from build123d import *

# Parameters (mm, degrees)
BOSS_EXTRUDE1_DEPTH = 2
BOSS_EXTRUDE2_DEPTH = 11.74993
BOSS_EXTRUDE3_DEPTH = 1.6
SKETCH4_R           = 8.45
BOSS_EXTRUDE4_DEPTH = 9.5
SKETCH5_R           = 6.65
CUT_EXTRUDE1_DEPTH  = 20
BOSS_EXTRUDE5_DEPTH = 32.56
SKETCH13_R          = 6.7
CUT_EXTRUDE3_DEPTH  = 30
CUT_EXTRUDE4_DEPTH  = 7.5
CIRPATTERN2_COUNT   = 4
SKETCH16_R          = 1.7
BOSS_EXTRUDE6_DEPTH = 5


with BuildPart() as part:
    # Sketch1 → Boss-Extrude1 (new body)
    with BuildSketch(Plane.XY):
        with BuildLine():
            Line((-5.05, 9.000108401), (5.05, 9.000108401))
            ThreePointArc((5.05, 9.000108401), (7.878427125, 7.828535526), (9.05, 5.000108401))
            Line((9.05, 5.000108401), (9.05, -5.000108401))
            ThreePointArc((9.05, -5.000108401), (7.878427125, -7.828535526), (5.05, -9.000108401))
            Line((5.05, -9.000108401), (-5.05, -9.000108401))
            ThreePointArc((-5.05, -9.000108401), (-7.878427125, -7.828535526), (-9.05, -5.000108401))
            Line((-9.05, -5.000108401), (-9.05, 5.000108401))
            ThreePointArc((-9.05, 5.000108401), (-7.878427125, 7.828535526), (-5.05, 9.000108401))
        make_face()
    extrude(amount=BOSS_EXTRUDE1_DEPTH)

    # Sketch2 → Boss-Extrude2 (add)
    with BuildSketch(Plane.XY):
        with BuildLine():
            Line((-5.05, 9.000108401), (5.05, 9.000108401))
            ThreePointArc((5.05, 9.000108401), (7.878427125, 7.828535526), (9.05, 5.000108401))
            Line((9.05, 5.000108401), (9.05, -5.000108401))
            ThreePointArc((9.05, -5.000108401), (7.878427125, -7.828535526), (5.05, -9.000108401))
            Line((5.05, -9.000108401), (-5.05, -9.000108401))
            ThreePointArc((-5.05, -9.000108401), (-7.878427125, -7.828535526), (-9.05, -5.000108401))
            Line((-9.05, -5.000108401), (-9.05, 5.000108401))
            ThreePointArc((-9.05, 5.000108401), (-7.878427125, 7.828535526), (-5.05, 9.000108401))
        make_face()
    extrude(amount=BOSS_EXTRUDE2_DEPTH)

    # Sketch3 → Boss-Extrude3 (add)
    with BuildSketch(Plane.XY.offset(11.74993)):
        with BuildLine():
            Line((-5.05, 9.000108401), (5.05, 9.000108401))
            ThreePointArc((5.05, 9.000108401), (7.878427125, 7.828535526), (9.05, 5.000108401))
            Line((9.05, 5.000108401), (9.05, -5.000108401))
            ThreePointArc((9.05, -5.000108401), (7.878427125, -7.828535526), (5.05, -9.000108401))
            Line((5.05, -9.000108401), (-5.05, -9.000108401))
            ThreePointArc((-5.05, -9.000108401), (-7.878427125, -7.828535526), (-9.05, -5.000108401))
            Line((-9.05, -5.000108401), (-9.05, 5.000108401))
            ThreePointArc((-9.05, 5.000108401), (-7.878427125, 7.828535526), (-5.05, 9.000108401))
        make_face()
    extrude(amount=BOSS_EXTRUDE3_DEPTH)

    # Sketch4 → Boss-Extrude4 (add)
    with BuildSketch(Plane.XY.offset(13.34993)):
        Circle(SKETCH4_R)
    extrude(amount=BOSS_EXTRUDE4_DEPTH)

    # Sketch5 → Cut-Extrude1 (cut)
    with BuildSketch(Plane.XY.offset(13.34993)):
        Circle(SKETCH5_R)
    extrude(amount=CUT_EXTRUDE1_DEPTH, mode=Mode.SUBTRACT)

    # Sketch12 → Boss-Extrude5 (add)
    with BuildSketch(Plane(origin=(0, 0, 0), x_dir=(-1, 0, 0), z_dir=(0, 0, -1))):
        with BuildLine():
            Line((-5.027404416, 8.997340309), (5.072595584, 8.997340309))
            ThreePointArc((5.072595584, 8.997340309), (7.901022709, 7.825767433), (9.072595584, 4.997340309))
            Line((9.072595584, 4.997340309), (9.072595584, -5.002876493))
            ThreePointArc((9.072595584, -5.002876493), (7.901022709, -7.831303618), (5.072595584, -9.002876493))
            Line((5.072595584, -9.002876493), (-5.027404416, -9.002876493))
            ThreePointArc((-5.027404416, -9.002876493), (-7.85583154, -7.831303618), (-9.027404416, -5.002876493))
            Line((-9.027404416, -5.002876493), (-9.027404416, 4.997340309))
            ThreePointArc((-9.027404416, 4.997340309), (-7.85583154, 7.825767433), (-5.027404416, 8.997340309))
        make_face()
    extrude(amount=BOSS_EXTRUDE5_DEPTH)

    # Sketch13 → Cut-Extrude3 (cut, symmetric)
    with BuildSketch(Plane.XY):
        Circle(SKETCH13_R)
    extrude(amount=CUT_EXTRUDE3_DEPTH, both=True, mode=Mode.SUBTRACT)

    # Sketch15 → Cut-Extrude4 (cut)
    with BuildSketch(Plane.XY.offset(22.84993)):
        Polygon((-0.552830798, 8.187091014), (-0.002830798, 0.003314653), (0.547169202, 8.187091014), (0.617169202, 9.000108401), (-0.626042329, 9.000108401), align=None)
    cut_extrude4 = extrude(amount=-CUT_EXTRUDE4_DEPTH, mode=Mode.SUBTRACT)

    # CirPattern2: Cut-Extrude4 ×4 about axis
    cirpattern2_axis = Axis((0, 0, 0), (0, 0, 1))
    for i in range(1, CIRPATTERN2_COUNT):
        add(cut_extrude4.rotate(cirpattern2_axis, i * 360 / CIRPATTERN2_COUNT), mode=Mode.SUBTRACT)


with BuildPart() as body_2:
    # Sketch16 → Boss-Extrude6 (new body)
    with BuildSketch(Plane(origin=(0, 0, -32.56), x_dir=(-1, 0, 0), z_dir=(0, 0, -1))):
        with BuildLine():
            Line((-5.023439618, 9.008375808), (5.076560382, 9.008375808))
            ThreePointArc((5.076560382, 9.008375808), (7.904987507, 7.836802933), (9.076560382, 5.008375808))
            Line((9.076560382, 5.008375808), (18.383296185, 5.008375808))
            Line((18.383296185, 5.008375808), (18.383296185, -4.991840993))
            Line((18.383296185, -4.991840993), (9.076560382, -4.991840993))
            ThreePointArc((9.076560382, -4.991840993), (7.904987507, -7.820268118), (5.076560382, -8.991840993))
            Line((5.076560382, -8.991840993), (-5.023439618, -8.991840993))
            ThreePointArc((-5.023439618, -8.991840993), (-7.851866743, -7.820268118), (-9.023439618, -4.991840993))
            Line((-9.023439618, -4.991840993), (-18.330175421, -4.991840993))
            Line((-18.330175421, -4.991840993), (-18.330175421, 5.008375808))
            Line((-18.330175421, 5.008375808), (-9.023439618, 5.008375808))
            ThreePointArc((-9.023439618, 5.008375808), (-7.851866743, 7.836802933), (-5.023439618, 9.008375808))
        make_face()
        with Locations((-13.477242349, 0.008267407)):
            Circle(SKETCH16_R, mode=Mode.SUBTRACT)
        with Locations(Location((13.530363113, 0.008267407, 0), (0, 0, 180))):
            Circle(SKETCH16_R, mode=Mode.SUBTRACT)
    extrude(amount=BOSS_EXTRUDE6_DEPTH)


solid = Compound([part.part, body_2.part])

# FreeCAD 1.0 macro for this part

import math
import FreeCAD as App
import Part
import Sketcher

V = App.Vector
Q = App.Units.Quantity

doc = App.newDocument("Part")
body = doc.addObject("PartDesign::Body", "Body")

# Sketch on XY plane
sketch1 = body.newObject("Sketcher::SketchObject", "Sketch")
sketch1.AttachmentSupport = (doc.getObject("XY_Plane"), [""])
sketch1.MapMode = "FlatFace"
sketch1.addGeometry([
    Part.LineSegment(V(5, 9, 0), V(-5, 9, 0)),  # 0
    Part.ArcOfCircle(Part.Circle(V(-5.1, 5, 0), V(0, 0, 1), 4), math.radians(90), math.radians(180)),  # 1
    Part.LineSegment(V(-9.1, 5, 0), V(-9.1, -5, 0)),  # 2
    Part.ArcOfCircle(Part.Circle(V(-5.1, -5, 0), V(0, 0, 1), 4), math.radians(180), math.radians(270)),  # 3
    Part.LineSegment(V(-5, -9, 0), V(5, -9, 0)),  # 4
    Part.ArcOfCircle(Part.Circle(V(5.1, -5, 0), V(0, 0, 1), 4), math.radians(-90), math.radians(0)),  # 5
    Part.LineSegment(V(9.1, -5, 0), V(9.1, 5, 0)),  # 6
    Part.ArcOfCircle(Part.Circle(V(5.1, 5, 0), V(0, 0, 1), 4), math.radians(0), math.radians(90)),  # 7
], False)
sketch1.addConstraint([
    Sketcher.Constraint("Tangent", 0, 2, 1, 1),
    Sketcher.Constraint("Tangent", 1, 2, 2, 1),
    Sketcher.Constraint("Tangent", 2, 2, 3, 1),
    Sketcher.Constraint("Tangent", 3, 2, 4, 1),
    Sketcher.Constraint("Tangent", 4, 2, 5, 1),
    Sketcher.Constraint("Tangent", 5, 2, 6, 1),
    Sketcher.Constraint("Tangent", 6, 2, 7, 1),
    Sketcher.Constraint("Tangent", 7, 2, 0, 1),
    Sketcher.Constraint("Horizontal", 0),
    Sketcher.Constraint("Vertical", 2),
    Sketcher.Constraint("Horizontal", 4),
    Sketcher.Constraint("Vertical", 6),
    Sketcher.Constraint("Equal", 1, 3),
    Sketcher.Constraint("Equal", 3, 5),
    Sketcher.Constraint("Equal", 5, 7),
    Sketcher.Constraint("Symmetric", 1, 3, 5, 3, -1, 1),
    Sketcher.Constraint("Radius", 1, Q("4 mm")),
    Sketcher.Constraint("DistanceX", 0, 2, 0, 1, Q("10.1 mm")),
    Sketcher.Constraint("DistanceY", 2, 2, 2, 1, Q("10.000217 mm")),
])
pad1 = body.newObject("PartDesign::Pad", "Pad")
pad1.Profile = sketch1
pad1.Length = 2

# Sketch on XY plane
sketch2 = body.newObject("Sketcher::SketchObject", "Sketch001")
sketch2.AttachmentSupport = (doc.getObject("XY_Plane"), [""])
sketch2.MapMode = "FlatFace"
sketch2.addGeometry([
    Part.LineSegment(V(5, 9, 0), V(-5, 9, 0)),  # 0
    Part.ArcOfCircle(Part.Circle(V(-5.1, 5, 0), V(0, 0, 1), 4), math.radians(90), math.radians(180)),  # 1
    Part.LineSegment(V(-9.1, 5, 0), V(-9.1, -5, 0)),  # 2
    Part.ArcOfCircle(Part.Circle(V(-5.1, -5, 0), V(0, 0, 1), 4), math.radians(180), math.radians(270)),  # 3
    Part.LineSegment(V(-5, -9, 0), V(5, -9, 0)),  # 4
    Part.ArcOfCircle(Part.Circle(V(5.1, -5, 0), V(0, 0, 1), 4), math.radians(-90), math.radians(0)),  # 5
    Part.LineSegment(V(9.1, -5, 0), V(9.1, 5, 0)),  # 6
    Part.ArcOfCircle(Part.Circle(V(5.1, 5, 0), V(0, 0, 1), 4), math.radians(0), math.radians(90)),  # 7
], False)
sketch2.addConstraint([
    Sketcher.Constraint("Tangent", 0, 2, 1, 1),
    Sketcher.Constraint("Tangent", 1, 2, 2, 1),
    Sketcher.Constraint("Tangent", 2, 2, 3, 1),
    Sketcher.Constraint("Tangent", 3, 2, 4, 1),
    Sketcher.Constraint("Tangent", 4, 2, 5, 1),
    Sketcher.Constraint("Tangent", 5, 2, 6, 1),
    Sketcher.Constraint("Tangent", 6, 2, 7, 1),
    Sketcher.Constraint("Tangent", 7, 2, 0, 1),
    Sketcher.Constraint("Horizontal", 0),
    Sketcher.Constraint("Vertical", 2),
    Sketcher.Constraint("Horizontal", 4),
    Sketcher.Constraint("Vertical", 6),
    Sketcher.Constraint("Equal", 1, 3),
    Sketcher.Constraint("Equal", 3, 5),
    Sketcher.Constraint("Equal", 5, 7),
    Sketcher.Constraint("Symmetric", 1, 3, 5, 3, -1, 1),
    Sketcher.Constraint("Radius", 1, Q("4 mm")),
    Sketcher.Constraint("DistanceX", 0, 2, 0, 1, Q("10.1 mm")),
    Sketcher.Constraint("DistanceY", 2, 2, 2, 1, Q("10.000217 mm")),
])
pad2 = body.newObject("PartDesign::Pad", "Pad001")
pad2.Profile = sketch2
pad2.Length = 11.74993

# Sketch on XY plane
sketch3 = body.newObject("Sketcher::SketchObject", "Sketch002")
sketch3.AttachmentSupport = (doc.getObject("XY_Plane"), [""])
sketch3.MapMode = "FlatFace"
sketch3.AttachmentOffset = App.Placement(V(0, 0, 11.74993), App.Rotation())
sketch3.addGeometry([
    Part.LineSegment(V(5, 9, 0), V(-5, 9, 0)),  # 0
    Part.ArcOfCircle(Part.Circle(V(-5.1, 5, 0), V(0, 0, 1), 4), math.radians(90), math.radians(180)),  # 1
    Part.LineSegment(V(-9.1, 5, 0), V(-9.1, -5, 0)),  # 2
    Part.ArcOfCircle(Part.Circle(V(-5.1, -5, 0), V(0, 0, 1), 4), math.radians(180), math.radians(270)),  # 3
    Part.LineSegment(V(-5, -9, 0), V(5, -9, 0)),  # 4
    Part.ArcOfCircle(Part.Circle(V(5.1, -5, 0), V(0, 0, 1), 4), math.radians(-90), math.radians(0)),  # 5
    Part.LineSegment(V(9.1, -5, 0), V(9.1, 5, 0)),  # 6
    Part.ArcOfCircle(Part.Circle(V(5.1, 5, 0), V(0, 0, 1), 4), math.radians(0), math.radians(90)),  # 7
], False)
sketch3.addConstraint([
    Sketcher.Constraint("Tangent", 0, 2, 1, 1),
    Sketcher.Constraint("Tangent", 1, 2, 2, 1),
    Sketcher.Constraint("Tangent", 2, 2, 3, 1),
    Sketcher.Constraint("Tangent", 3, 2, 4, 1),
    Sketcher.Constraint("Tangent", 4, 2, 5, 1),
    Sketcher.Constraint("Tangent", 5, 2, 6, 1),
    Sketcher.Constraint("Tangent", 6, 2, 7, 1),
    Sketcher.Constraint("Tangent", 7, 2, 0, 1),
    Sketcher.Constraint("Horizontal", 0),
    Sketcher.Constraint("Vertical", 2),
    Sketcher.Constraint("Horizontal", 4),
    Sketcher.Constraint("Vertical", 6),
    Sketcher.Constraint("Equal", 1, 3),
    Sketcher.Constraint("Equal", 3, 5),
    Sketcher.Constraint("Equal", 5, 7),
    Sketcher.Constraint("Symmetric", 1, 3, 5, 3, -1, 1),
    Sketcher.Constraint("Radius", 1, Q("4 mm")),
    Sketcher.Constraint("DistanceX", 0, 2, 0, 1, Q("10.1 mm")),
    Sketcher.Constraint("DistanceY", 2, 2, 2, 1, Q("10.000217 mm")),
])
pad3 = body.newObject("PartDesign::Pad", "Pad002")
pad3.Profile = sketch3
pad3.Length = 1.6

# Sketch on XY plane
sketch4 = body.newObject("Sketcher::SketchObject", "Sketch003")
sketch4.AttachmentSupport = (doc.getObject("XY_Plane"), [""])
sketch4.MapMode = "FlatFace"
sketch4.AttachmentOffset = App.Placement(V(0, 0, 13.34993), App.Rotation())
sketch4.addGeometry(Part.Circle(V(0, 0, 0), V(0, 0, 1), 8), False)
sketch4.addConstraint([
    Sketcher.Constraint("Coincident", 0, 3, -1, 1),
    Sketcher.Constraint("Diameter", 0, Q("16.9 mm")),
])
pad4 = body.newObject("PartDesign::Pad", "Pad003")
pad4.Profile = sketch4
pad4.Length = 9.5

# Sketch on XY plane
sketch5 = body.newObject("Sketcher::SketchObject", "Sketch004")
sketch5.AttachmentSupport = (doc.getObject("XY_Plane"), [""])
sketch5.MapMode = "FlatFace"
sketch5.AttachmentOffset = App.Placement(V(0, 0, 13.34993), App.Rotation())
sketch5.addGeometry(Part.Circle(V(0, 0, 0), V(0, 0, 1), 7), False)
sketch5.addConstraint([
    Sketcher.Constraint("Coincident", 0, 3, -1, 1),
    Sketcher.Constraint("Diameter", 0, Q("13.3 mm")),
])
pocket1 = body.newObject("PartDesign::Pocket", "Pocket")
pocket1.Profile = sketch5
pocket1.Length = 20
pocket1.Reversed = True

# Sketch on XY plane
sketch6 = body.newObject("Sketcher::SketchObject", "Sketch005")
sketch6.AttachmentSupport = (doc.getObject("XY_Plane"), [""])
sketch6.MapMode = "FlatFace"
sketch6.addGeometry([
    Part.LineSegment(V(-5.1, 9, 0), V(5, 9, 0)),  # 0
    Part.ArcOfCircle(Part.Circle(V(5, 5, 0), V(0, 0, 1), 4), math.radians(0), math.radians(90)),  # 1
    Part.LineSegment(V(9, 5, 0), V(9, -5, 0)),  # 2
    Part.ArcOfCircle(Part.Circle(V(5, -5, 0), V(0, 0, 1), 4), math.radians(-90), math.radians(0)),  # 3
    Part.LineSegment(V(5, -9, 0), V(-5.1, -9, 0)),  # 4
    Part.ArcOfCircle(Part.Circle(V(-5.1, -5, 0), V(0, 0, 1), 4), math.radians(180), math.radians(270)),  # 5
    Part.LineSegment(V(-9.1, -5, 0), V(-9.1, 5, 0)),  # 6
    Part.ArcOfCircle(Part.Circle(V(-5.1, 5, 0), V(0, 0, 1), 4), math.radians(90), math.radians(180)),  # 7
], False)
sketch6.addConstraint([
    Sketcher.Constraint("Tangent", 0, 2, 1, 2),
    Sketcher.Constraint("Tangent", 1, 1, 2, 1),
    Sketcher.Constraint("Tangent", 2, 2, 3, 2),
    Sketcher.Constraint("Tangent", 3, 1, 4, 1),
    Sketcher.Constraint("Tangent", 4, 2, 5, 2),
    Sketcher.Constraint("Tangent", 5, 1, 6, 1),
    Sketcher.Constraint("Tangent", 6, 2, 7, 2),
    Sketcher.Constraint("Tangent", 7, 1, 0, 1),
    Sketcher.Constraint("Horizontal", 0),
    Sketcher.Constraint("Vertical", 2),
    Sketcher.Constraint("Horizontal", 4),
    Sketcher.Constraint("Vertical", 6),
    Sketcher.Constraint("Equal", 1, 3),
    Sketcher.Constraint("Equal", 3, 5),
    Sketcher.Constraint("Equal", 5, 7),
    Sketcher.Constraint("Radius", 1, Q("4 mm")),
    Sketcher.Constraint("DistanceX", 0, 1, 0, 2, Q("10.1 mm")),
    Sketcher.Constraint("DistanceY", 2, 2, 2, 1, Q("10.000217 mm")),
    Sketcher.Constraint("DistanceY", -1, 1, 1, 3, Q("4.99734 mm")),
    Sketcher.Constraint("DistanceX", -1, 1, 1, 3, Q("5.027404 mm")),
])
pad5 = body.newObject("PartDesign::Pad", "Pad004")
pad5.Profile = sketch6
pad5.Length = 32.56
pad5.Reversed = True

# Sketch on XY plane
sketch7 = body.newObject("Sketcher::SketchObject", "Sketch006")
sketch7.AttachmentSupport = (doc.getObject("XY_Plane"), [""])
sketch7.MapMode = "FlatFace"
sketch7.addGeometry(Part.Circle(V(0, 0, 0), V(0, 0, 1), 7), False)
sketch7.addConstraint([
    Sketcher.Constraint("Coincident", 0, 3, -1, 1),
    Sketcher.Constraint("Diameter", 0, Q("13.4 mm")),
])
pocket2 = body.newObject("PartDesign::Pocket", "Pocket001")
pocket2.Profile = sketch7
pocket2.Length = 60
pocket2.Midplane = True

# Sketch on XY plane
sketch8 = body.newObject("Sketcher::SketchObject", "Sketch007")
sketch8.AttachmentSupport = (doc.getObject("XY_Plane"), [""])
sketch8.MapMode = "FlatFace"
sketch8.AttachmentOffset = App.Placement(V(0, 0, 22.84993), App.Rotation())
sketch8.addGeometry([
    Part.LineSegment(V(-0.6, 8.2, 0), V(0, 0, 0)),  # 0
    Part.LineSegment(V(0, 0, 0), V(0.5, 8.2, 0)),  # 1
    Part.LineSegment(V(0.5, 8.2, 0), V(0.6, 9, 0)),  # 2
    Part.LineSegment(V(0.6, 9, 0), V(-0.6, 9, 0)),  # 3
    Part.LineSegment(V(-0.6, 9, 0), V(-0.6, 8.2, 0)),  # 4
], False)
sketch8.addConstraint([
    Sketcher.Constraint("Coincident", 0, 2, 1, 1),
    Sketcher.Constraint("Coincident", 1, 2, 2, 1),
    Sketcher.Constraint("Coincident", 2, 2, 3, 1),
    Sketcher.Constraint("Coincident", 3, 2, 4, 1),
    Sketcher.Constraint("Coincident", 4, 2, 0, 1),
    Sketcher.Constraint("Horizontal", 3),
    Sketcher.Constraint("Horizontal", 1, 2, 4, 2),
    Sketcher.Constraint("Equal", 0, 1),
    Sketcher.Constraint("DistanceX", 4, 2, 1, 2, Q("1.1 mm")),
    Sketcher.Constraint("DistanceX", 1, 2, 2, 2, Q("0.07 mm")),
    Sketcher.Constraint("DistanceX", 3, 2, 3, 1, Q("1.243212 mm")),
    Sketcher.Constraint("DistanceX", 0, 2, -1, 1, Q("0.002831 mm")),
    Sketcher.Constraint("DistanceY", -1, 1, 1, 2, Q("8.187091 mm")),
    Sketcher.Constraint("DistanceY", -1, 1, 2, 2, Q("9.000108 mm")),
    Sketcher.Constraint("Distance", 0, Q("8.202237 mm")),
])
pocket3 = body.newObject("PartDesign::Pocket", "Pocket002")
pocket3.Profile = sketch8
pocket3.Length = 7.5
doc.recompute()

polarpattern = body.newObject("PartDesign::PolarPattern", "PolarPattern")
polarpattern.Originals = [pocket3]
polarpattern.Axis = (doc.getObject("Z_Axis"), [""])
polarpattern.Angle = 360
polarpattern.Occurrences = 4
body.Tip = polarpattern
body2 = doc.addObject("PartDesign::Body", "Body001")

# Sketch on XY plane
sketch9 = body2.newObject("Sketcher::SketchObject", "Sketch008")
sketch9.AttachmentSupport = (doc.getObject("XY_Plane001"), [""])
sketch9.MapMode = "FlatFace"
sketch9.AttachmentOffset = App.Placement(V(0, 0, -32.56), App.Rotation())
sketch9.addGeometry([
    Part.LineSegment(V(-5.1, 9, 0), V(5, 9, 0)),  # 0
    Part.ArcOfCircle(Part.Circle(V(5, 5, 0), V(0, 0, 1), 4), math.radians(0), math.radians(90)),  # 1
    Part.LineSegment(V(9, 5, 0), V(18.3, 5, 0)),  # 2
    Part.LineSegment(V(18.3, 5, 0), V(18.3, -5, 0)),  # 3
    Part.LineSegment(V(18.3, -5, 0), V(9, -5, 0)),  # 4
    Part.ArcOfCircle(Part.Circle(V(5, -5, 0), V(0, 0, 1), 4), math.radians(-90), math.radians(0)),  # 5
    Part.LineSegment(V(5, -9, 0), V(-5.1, -9, 0)),  # 6
    Part.ArcOfCircle(Part.Circle(V(-5.1, -5, 0), V(0, 0, 1), 4), math.radians(180), math.radians(270)),  # 7
    Part.LineSegment(V(-9.1, -5, 0), V(-18.4, -5, 0)),  # 8
    Part.LineSegment(V(-18.4, -5, 0), V(-18.4, 5, 0)),  # 9
    Part.LineSegment(V(-18.4, 5, 0), V(-9.1, 5, 0)),  # 10
    Part.ArcOfCircle(Part.Circle(V(-5.1, 5, 0), V(0, 0, 1), 4), math.radians(90), math.radians(180)),  # 11
    Part.Circle(V(-13.5, 0, 0), V(0, 0, 1), 1.7),  # 12
    Part.Circle(V(13.5, 0, 0), V(0, 0, 1), 1.7),  # 13
], False)
sketch9.addConstraint([
    Sketcher.Constraint("Tangent", 0, 2, 1, 2),
    Sketcher.Constraint("Coincident", 1, 1, 2, 1),
    Sketcher.Constraint("Coincident", 2, 2, 3, 1),
    Sketcher.Constraint("Coincident", 3, 2, 4, 1),
    Sketcher.Constraint("Coincident", 4, 2, 5, 2),
    Sketcher.Constraint("Tangent", 5, 1, 6, 1),
    Sketcher.Constraint("Tangent", 6, 2, 7, 2),
    Sketcher.Constraint("Coincident", 7, 1, 8, 1),
    Sketcher.Constraint("Coincident", 8, 2, 9, 1),
    Sketcher.Constraint("Coincident", 9, 2, 10, 1),
    Sketcher.Constraint("Coincident", 10, 2, 11, 2),
    Sketcher.Constraint("Tangent", 11, 1, 0, 1),
    Sketcher.Constraint("Horizontal", 0),
    Sketcher.Constraint("Horizontal", 2),
    Sketcher.Constraint("Vertical", 3),
    Sketcher.Constraint("Horizontal", 4),
    Sketcher.Constraint("Horizontal", 6),
    Sketcher.Constraint("Horizontal", 8),
    Sketcher.Constraint("Vertical", 9),
    Sketcher.Constraint("Horizontal", 10),
    Sketcher.Constraint("Equal", 1, 5),
    Sketcher.Constraint("Equal", 5, 7),
    Sketcher.Constraint("Equal", 7, 11),
    Sketcher.Constraint("Equal", 12, 13),
    Sketcher.Constraint("Horizontal", 12, 3, 13, 3),
    Sketcher.Constraint("Horizontal", 11, 3, 1, 1),
    Sketcher.Constraint("Horizontal", 7, 3, 3, 2),
    Sketcher.Constraint("Horizontal", 4, 2, 7, 1),
    Sketcher.Constraint("Horizontal", 2, 2, 9, 2),
    Sketcher.Constraint("Vertical", 1, 3, 5, 3),
    Sketcher.Constraint("Vertical", 7, 3, 11, 3),
    Sketcher.Constraint("Equal", 4, 8),
    Sketcher.Constraint("Radius", 1, Q("4 mm")),
    Sketcher.Constraint("Diameter", 12, Q("3.4 mm")),
    Sketcher.Constraint("DistanceX", 0, 1, 0, 2, Q("10.1 mm")),
    Sketcher.Constraint("DistanceX", 2, 1, 2, 2, Q("9.306736 mm")),
    Sketcher.Constraint("DistanceY", 3, 2, 3, 1, Q("10.000217 mm")),
    Sketcher.Constraint("DistanceX", -1, 1, 1, 3, Q("5.02344 mm")),
    Sketcher.Constraint("DistanceY", 5, 3, -1, 1, Q("4.991841 mm")),
    Sketcher.Constraint("DistanceY", 7, 3, 12, 3, Q("5.000108 mm")),
    Sketcher.Constraint("DistanceX", 12, 3, -1, 1, Q("13.530363 mm")),
    Sketcher.Constraint("DistanceX", -1, 1, 13, 3, Q("13.477242 mm")),
])
pad6 = body2.newObject("PartDesign::Pad", "Pad005")
pad6.Profile = sketch9
pad6.Length = 5
pad6.Reversed = True

doc.recompute()
